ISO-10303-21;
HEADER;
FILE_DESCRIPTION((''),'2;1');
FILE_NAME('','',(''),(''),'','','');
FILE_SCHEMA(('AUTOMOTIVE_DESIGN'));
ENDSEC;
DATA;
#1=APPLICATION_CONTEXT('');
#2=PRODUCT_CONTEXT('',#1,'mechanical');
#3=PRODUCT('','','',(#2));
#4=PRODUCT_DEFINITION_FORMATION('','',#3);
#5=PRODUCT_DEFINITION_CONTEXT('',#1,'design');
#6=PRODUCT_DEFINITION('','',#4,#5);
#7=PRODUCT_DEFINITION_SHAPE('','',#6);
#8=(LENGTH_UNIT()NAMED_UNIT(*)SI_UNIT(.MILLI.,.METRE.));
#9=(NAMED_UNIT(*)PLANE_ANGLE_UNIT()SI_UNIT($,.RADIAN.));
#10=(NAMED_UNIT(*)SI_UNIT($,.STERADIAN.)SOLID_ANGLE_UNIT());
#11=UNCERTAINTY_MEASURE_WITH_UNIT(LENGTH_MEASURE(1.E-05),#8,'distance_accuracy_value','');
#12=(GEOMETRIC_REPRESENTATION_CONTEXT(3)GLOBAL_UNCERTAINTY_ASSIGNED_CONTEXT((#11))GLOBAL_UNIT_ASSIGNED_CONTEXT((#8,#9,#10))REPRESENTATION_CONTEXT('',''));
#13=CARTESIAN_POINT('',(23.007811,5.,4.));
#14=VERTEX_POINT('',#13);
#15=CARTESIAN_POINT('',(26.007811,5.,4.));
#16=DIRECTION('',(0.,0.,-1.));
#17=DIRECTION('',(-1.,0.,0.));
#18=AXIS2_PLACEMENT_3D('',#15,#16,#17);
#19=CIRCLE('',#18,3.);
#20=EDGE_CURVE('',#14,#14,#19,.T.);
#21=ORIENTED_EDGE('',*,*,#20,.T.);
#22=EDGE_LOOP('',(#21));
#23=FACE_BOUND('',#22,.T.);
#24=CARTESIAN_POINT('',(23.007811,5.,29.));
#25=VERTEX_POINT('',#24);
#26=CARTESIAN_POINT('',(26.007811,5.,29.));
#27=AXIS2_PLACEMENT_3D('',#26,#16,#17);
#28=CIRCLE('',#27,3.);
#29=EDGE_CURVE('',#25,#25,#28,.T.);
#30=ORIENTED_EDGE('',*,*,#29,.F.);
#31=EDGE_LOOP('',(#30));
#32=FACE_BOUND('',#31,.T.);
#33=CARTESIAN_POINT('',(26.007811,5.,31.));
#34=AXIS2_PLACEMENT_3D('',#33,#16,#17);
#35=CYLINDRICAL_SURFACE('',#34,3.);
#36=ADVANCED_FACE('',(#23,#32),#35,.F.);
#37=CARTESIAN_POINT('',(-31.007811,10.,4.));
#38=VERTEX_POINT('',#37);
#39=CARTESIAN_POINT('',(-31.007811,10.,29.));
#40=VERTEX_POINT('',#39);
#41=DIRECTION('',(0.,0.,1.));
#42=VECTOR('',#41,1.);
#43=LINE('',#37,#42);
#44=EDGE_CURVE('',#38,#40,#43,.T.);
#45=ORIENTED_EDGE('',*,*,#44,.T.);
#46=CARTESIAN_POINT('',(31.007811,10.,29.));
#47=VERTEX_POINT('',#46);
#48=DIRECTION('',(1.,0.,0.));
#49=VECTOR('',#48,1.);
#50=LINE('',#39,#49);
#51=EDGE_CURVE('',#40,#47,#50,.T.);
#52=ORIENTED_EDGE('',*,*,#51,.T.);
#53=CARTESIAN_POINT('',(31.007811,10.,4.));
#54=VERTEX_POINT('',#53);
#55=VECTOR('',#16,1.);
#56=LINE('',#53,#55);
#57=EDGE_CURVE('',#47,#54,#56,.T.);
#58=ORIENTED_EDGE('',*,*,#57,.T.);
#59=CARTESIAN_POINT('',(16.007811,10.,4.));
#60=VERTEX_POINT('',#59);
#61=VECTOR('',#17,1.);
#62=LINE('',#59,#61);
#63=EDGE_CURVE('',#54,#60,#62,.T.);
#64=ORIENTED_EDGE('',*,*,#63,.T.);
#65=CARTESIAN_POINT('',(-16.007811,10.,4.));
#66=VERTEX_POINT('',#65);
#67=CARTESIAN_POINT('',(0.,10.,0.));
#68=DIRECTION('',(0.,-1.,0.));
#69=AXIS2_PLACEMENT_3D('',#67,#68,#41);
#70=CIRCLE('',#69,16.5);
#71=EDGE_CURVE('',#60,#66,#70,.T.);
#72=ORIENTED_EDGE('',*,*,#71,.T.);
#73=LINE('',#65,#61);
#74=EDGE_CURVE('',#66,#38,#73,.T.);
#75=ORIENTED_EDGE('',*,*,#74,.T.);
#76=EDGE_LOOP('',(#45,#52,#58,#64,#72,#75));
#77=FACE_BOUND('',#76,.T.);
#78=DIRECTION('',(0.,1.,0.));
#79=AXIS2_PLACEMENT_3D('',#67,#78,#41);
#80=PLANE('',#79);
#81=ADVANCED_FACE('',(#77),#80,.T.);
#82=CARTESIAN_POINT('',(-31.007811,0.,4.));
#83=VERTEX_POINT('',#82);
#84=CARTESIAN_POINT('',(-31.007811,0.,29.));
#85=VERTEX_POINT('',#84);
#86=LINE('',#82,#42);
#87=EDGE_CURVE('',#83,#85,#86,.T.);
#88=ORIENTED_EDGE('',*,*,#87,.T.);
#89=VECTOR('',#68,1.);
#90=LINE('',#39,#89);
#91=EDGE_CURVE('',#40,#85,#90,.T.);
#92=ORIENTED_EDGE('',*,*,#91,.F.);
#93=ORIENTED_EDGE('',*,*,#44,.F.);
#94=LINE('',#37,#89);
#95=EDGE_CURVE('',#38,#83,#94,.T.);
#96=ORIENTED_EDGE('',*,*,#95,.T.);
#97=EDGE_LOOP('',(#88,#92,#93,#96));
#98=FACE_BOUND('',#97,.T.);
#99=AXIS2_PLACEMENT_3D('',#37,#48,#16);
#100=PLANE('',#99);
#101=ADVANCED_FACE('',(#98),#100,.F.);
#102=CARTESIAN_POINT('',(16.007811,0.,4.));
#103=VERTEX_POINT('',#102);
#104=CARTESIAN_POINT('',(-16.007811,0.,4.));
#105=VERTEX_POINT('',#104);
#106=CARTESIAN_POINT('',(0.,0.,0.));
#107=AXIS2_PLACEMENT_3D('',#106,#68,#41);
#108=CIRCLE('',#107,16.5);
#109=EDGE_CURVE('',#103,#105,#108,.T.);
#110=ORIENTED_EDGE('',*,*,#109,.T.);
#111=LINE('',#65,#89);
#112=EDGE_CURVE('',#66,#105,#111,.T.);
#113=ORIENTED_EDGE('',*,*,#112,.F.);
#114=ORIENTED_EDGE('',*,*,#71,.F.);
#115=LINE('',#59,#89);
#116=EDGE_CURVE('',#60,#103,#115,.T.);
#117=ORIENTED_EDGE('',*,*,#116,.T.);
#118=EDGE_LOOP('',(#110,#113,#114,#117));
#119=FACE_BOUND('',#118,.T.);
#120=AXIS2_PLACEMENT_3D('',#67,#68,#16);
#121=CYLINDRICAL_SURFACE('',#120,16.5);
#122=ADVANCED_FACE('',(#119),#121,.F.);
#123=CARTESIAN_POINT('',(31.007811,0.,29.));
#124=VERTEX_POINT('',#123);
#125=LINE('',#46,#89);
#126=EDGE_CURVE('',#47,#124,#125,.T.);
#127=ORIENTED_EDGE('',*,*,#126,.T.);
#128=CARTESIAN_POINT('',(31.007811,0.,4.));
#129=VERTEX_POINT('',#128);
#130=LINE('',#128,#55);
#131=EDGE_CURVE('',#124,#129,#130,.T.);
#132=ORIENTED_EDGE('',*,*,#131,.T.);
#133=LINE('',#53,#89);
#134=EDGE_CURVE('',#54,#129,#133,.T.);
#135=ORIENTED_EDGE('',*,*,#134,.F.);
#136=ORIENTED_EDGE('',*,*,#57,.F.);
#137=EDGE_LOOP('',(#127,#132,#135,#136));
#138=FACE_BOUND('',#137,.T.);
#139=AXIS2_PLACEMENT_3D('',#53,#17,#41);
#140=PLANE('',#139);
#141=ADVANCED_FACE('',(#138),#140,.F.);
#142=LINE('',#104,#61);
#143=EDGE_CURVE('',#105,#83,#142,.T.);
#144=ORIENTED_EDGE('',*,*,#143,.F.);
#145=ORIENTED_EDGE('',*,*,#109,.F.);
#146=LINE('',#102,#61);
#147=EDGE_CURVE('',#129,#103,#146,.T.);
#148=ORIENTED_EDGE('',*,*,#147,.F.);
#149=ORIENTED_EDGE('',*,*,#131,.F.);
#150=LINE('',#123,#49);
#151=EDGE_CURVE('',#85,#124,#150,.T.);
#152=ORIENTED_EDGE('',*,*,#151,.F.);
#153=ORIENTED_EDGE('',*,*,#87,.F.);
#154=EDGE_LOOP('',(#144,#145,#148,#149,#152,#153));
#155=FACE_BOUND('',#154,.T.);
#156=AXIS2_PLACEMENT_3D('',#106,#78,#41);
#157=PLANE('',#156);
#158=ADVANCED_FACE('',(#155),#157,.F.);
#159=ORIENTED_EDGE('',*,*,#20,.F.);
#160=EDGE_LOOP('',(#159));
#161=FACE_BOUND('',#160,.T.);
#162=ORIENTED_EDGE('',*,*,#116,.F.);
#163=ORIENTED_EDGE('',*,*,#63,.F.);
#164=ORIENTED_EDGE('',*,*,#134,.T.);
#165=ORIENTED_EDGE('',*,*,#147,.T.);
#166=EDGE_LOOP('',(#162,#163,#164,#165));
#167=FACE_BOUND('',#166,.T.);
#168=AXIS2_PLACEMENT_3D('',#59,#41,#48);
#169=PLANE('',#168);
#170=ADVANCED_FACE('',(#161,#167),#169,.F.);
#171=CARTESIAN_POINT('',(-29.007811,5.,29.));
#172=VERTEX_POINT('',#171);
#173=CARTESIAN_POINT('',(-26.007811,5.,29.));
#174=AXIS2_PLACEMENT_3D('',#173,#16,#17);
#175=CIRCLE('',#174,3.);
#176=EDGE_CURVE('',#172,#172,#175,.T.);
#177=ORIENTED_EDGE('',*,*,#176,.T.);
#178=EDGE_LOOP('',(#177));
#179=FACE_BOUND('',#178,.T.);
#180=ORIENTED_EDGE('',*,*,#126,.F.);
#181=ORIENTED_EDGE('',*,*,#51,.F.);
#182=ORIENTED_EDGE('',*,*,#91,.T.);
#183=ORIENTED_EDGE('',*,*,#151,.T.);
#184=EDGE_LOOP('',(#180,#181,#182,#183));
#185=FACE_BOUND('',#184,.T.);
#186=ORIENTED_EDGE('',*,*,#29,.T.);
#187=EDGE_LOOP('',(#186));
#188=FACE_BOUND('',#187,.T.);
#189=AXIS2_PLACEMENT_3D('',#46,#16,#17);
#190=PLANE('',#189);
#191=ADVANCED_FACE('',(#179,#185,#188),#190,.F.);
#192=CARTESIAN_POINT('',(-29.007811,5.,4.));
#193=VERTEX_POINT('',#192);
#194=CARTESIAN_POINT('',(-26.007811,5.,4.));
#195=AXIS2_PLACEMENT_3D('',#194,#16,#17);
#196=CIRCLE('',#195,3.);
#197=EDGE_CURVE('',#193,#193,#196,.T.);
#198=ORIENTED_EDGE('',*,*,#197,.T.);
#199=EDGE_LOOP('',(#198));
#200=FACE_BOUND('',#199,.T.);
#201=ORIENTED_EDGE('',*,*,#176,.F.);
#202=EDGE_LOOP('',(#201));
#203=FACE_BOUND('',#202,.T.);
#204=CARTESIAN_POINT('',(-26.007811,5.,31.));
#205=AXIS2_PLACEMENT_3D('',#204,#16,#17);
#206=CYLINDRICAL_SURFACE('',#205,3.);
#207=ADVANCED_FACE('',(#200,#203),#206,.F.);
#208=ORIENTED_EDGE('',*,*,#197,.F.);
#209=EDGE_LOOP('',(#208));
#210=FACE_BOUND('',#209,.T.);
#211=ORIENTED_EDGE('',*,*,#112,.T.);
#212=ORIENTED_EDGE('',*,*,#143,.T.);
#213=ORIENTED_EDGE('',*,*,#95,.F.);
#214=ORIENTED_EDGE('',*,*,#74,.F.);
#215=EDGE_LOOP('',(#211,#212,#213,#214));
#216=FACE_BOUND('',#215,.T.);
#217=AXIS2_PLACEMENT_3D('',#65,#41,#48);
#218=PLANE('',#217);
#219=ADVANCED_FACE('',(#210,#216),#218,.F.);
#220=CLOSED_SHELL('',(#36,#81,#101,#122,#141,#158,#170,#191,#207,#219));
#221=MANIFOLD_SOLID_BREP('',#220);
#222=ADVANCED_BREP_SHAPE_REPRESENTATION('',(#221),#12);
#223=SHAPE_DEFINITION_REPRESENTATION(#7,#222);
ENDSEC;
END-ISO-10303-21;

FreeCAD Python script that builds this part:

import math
import FreeCAD as App
import Part
import Sketcher

V = App.Vector

doc = App.newDocument("Part")
body = doc.addObject("PartDesign::Body", "Body")

sketch1 = doc.addObject("Sketcher::SketchObject", "Sketch")
body.addObject(sketch1)
sketch1.AttachmentSupport = (doc.XZ_Plane, [""])
sketch1.MapMode = "FlatFace"
sketch1.addGeometry([
    Part.LineSegment(V(-16, 4, 0), V(-31, 4, 0)),
    Part.LineSegment(V(-31, 4, 0), V(-31, 29, 0)),
    Part.LineSegment(V(-31, 29, 0), V(31, 29, 0)),
    Part.LineSegment(V(31, 29, 0), V(31, 4, 0)),
    Part.LineSegment(V(31, 4, 0), V(16, 4, 0)),
    Part.ArcOfCircle(Part.Circle(V(0, 0, 0), V(0, 0, 1), 17), math.radians(14), math.radians(166)),
], False)
sketch1.addConstraint([
    Sketcher.Constraint("Coincident", 0, 2, 1, 1),
    Sketcher.Constraint("Coincident", 1, 2, 2, 1),
    Sketcher.Constraint("Coincident", 2, 2, 3, 1),
    Sketcher.Constraint("Coincident", 3, 2, 4, 1),
    Sketcher.Constraint("Coincident", 4, 2, 5, 1),
    Sketcher.Constraint("Coincident", 5, 2, 0, 1),
    Sketcher.Constraint("Horizontal", 0),
    Sketcher.Constraint("Vertical", 1),
    Sketcher.Constraint("Horizontal", 2),
    Sketcher.Constraint("Vertical", 3),
    Sketcher.Constraint("Horizontal", 4),
    Sketcher.Constraint("Coincident", 5, 3, -1, 1),
    Sketcher.Constraint("Symmetric", 0, 2, 3, 2, -2),
    Sketcher.Constraint("Radius", 5, 16.5),
    Sketcher.Constraint("DistanceX", 0, 2, 0, 1, 15.0),
    Sketcher.Constraint("DistanceY", 1, 1, 1, 2, 25.0),
    Sketcher.Constraint("DistanceY", -1, 1, 0, 2, 4.0),
])
pad1 = doc.addObject("PartDesign::Pad", "Pad")
body.addObject(pad1)
pad1.Profile = sketch1
pad1.Length = 10
pad1.Reversed = True

sketch2 = doc.addObject("Sketcher::SketchObject", "Sketch001")
body.addObject(sketch2)
sketch2.AttachmentSupport = (doc.XY_Plane, [""])
sketch2.MapMode = "FlatFace"
sketch2.AttachmentOffset = App.Placement(V(0, 0, 4), App.Rotation())
sketch2.addGeometry([
    Part.Circle(V(26, 5, 0), V(0, 0, 1), 3),
    Part.Circle(V(-26, 5, 0), V(0, 0, 1), 3),
], False)
sketch2.addConstraint([
    Sketcher.Constraint("Equal", 0, 1),
    Sketcher.Constraint("Symmetric", 0, 3, 1, 3, -2),
    Sketcher.Constraint("Diameter", 0, 6.0),
    Sketcher.Constraint("DistanceY", -1, 1, 0, 3, 5.0),
    Sketcher.Constraint("DistanceX", -1, 1, 0, 3, 26.007811),
])
pocket1 = doc.addObject("PartDesign::Pocket", "Pocket")
body.addObject(pocket1)
pocket1.Profile = sketch2
pocket1.Length = 27
pocket1.Reversed = True

doc.recompute()
